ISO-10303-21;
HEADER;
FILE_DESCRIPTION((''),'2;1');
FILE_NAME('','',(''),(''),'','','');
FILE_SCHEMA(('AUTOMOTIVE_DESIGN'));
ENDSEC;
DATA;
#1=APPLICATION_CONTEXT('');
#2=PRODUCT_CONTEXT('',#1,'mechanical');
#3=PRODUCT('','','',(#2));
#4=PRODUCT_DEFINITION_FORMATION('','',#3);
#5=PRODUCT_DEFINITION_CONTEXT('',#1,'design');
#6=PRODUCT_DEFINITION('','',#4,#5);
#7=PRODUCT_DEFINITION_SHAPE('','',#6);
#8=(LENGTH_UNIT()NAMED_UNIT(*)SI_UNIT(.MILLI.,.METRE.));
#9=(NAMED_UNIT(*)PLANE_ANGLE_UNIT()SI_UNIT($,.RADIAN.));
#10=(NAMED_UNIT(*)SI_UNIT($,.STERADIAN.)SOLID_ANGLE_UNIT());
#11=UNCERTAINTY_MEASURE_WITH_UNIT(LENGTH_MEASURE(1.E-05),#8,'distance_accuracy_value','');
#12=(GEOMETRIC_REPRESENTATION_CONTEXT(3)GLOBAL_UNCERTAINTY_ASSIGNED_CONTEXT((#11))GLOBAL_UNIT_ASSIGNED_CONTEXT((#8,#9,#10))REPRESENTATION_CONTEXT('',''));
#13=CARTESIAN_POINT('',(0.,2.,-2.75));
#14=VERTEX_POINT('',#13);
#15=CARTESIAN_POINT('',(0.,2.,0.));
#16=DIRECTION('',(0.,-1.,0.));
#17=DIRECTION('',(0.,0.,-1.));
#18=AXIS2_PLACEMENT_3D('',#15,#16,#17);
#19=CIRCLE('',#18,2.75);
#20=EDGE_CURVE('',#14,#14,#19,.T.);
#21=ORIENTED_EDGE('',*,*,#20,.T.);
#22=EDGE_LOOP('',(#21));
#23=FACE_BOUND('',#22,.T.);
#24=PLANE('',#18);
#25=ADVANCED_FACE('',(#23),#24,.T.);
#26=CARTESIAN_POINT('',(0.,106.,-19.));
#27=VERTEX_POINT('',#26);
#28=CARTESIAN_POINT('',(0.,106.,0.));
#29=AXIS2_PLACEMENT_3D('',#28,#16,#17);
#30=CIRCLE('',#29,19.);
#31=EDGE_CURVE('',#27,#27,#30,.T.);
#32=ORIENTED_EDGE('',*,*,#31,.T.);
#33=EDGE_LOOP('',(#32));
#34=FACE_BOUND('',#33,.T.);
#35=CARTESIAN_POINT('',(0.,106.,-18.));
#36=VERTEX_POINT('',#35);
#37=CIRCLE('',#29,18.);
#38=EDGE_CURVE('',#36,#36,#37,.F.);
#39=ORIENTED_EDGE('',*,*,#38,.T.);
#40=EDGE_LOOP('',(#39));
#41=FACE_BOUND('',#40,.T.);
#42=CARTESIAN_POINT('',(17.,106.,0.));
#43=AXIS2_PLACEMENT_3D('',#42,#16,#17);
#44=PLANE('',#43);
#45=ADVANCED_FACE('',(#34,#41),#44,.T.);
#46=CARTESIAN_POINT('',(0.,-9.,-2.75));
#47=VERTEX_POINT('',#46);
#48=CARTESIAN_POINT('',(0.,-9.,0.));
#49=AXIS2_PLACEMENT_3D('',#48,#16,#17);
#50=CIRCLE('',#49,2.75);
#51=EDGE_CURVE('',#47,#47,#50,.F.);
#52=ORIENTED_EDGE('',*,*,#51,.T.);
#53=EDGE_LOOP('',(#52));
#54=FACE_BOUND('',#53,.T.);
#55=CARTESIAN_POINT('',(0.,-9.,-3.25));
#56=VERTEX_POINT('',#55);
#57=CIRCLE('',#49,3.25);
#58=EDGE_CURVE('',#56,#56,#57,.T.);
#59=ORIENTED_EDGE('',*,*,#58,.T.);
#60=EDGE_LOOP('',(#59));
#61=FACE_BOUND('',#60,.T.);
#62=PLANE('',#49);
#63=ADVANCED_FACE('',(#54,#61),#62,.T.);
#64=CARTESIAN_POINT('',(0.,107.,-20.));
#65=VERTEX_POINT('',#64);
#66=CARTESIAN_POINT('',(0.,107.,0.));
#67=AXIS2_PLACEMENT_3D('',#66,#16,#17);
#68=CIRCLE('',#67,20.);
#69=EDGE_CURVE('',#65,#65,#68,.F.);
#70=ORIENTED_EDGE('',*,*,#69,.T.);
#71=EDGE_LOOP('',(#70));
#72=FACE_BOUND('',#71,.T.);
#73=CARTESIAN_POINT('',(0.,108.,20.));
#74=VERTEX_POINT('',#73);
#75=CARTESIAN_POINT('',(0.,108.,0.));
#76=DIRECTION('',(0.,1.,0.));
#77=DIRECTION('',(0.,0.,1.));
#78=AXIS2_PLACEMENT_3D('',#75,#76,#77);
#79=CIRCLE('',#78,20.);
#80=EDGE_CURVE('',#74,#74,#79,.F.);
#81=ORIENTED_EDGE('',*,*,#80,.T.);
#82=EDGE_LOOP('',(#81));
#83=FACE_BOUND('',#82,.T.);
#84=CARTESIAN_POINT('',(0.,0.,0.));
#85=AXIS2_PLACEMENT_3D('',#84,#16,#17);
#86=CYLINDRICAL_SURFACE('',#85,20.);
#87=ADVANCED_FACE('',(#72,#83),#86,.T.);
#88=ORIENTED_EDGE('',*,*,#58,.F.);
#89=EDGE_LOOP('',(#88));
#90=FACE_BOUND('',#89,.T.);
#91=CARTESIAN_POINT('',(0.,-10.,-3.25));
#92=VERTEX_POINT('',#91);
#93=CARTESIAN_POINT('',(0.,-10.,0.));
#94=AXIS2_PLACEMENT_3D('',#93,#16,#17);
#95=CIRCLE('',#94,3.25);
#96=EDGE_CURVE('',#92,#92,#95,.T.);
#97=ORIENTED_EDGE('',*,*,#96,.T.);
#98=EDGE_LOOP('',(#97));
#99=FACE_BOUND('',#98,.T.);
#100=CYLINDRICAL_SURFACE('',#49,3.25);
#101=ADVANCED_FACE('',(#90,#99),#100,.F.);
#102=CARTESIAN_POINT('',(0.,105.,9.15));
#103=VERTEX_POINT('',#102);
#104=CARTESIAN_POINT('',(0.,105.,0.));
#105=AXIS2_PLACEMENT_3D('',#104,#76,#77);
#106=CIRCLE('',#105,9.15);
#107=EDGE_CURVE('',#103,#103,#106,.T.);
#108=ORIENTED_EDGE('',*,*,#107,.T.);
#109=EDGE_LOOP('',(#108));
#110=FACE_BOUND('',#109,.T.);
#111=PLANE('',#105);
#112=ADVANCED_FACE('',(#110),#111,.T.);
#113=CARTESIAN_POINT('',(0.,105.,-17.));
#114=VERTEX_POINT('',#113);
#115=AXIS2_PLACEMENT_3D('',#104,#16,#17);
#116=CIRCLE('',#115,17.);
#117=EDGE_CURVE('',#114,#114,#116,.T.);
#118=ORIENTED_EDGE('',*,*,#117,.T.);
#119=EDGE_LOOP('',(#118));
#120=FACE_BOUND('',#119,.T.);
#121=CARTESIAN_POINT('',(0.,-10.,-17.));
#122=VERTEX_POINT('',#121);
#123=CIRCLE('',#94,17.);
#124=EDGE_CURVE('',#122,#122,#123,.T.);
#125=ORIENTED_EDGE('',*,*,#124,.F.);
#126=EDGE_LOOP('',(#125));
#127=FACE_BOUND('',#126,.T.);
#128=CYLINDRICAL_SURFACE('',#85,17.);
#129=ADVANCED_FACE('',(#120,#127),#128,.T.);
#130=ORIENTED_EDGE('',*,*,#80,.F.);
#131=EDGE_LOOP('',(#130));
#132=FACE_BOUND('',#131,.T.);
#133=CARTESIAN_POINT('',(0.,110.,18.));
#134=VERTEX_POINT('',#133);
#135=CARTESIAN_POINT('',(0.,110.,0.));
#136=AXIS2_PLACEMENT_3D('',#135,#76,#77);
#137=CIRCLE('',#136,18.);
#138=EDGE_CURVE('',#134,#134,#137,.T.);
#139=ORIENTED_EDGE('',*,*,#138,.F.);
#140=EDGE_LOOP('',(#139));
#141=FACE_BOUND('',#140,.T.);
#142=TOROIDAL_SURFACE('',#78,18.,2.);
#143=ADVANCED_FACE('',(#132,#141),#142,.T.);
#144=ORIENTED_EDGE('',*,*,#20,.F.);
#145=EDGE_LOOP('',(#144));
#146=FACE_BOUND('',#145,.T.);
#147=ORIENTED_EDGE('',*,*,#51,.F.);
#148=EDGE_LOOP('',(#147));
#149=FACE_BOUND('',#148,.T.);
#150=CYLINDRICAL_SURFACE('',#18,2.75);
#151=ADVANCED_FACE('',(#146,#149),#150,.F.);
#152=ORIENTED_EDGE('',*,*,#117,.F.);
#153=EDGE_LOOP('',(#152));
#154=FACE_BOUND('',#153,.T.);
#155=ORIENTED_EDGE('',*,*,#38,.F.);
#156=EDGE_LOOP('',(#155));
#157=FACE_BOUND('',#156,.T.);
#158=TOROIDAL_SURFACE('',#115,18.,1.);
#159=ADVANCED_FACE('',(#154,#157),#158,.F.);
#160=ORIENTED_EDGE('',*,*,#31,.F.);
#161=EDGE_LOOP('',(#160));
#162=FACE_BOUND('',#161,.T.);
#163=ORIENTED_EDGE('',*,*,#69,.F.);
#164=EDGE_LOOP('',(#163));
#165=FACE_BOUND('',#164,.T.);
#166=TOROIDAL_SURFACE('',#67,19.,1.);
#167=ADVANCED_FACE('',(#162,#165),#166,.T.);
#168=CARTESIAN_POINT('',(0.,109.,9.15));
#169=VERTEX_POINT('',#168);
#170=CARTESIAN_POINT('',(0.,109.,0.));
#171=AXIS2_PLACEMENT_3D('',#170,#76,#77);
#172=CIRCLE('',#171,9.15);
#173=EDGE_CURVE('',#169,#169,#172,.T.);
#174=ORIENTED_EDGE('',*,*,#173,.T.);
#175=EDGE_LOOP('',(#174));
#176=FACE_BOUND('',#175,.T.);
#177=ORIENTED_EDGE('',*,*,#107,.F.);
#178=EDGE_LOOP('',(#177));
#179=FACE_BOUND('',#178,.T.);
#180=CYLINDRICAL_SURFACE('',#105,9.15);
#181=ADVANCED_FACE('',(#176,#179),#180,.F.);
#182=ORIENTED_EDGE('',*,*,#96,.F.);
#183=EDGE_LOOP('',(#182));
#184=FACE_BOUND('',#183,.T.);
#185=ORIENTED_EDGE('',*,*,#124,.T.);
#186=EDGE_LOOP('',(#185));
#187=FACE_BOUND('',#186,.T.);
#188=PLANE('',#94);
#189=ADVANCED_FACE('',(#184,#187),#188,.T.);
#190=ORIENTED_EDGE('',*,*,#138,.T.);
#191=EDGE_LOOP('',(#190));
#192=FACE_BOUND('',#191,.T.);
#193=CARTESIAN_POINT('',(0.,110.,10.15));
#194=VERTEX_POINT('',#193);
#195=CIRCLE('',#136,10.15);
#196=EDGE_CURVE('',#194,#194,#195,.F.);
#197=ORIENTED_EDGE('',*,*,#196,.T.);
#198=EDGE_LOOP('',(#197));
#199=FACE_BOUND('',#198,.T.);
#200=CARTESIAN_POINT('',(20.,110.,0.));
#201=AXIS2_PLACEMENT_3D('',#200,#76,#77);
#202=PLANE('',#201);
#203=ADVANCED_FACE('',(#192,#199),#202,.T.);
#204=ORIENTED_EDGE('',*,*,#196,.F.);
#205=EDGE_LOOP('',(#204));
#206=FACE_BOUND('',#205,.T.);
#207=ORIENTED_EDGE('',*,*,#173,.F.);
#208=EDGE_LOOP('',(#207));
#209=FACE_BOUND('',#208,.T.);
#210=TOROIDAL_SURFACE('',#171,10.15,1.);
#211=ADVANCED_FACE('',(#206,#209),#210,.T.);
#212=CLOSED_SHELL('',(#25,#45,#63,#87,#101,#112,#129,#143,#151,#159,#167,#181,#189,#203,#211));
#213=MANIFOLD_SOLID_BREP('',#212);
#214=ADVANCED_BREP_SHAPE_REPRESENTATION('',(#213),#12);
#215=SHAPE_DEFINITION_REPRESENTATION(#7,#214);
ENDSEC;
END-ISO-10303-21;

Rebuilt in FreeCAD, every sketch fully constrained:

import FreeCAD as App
import Part
import Sketcher
from FreeCAD import Vector
Q = App.Units.Quantity


def edges_at(feature, points):
    """Names of the edges that pass closest to the given points."""
    edges = feature.Shape.Edges
    near = lambda p: min(range(len(edges)), key=lambda i: edges[i].distToShape(Part.Vertex(*p))[0])
    return sorted({f"Edge{near(p) + 1}" for p in points})


def add_polygon(sketch, points):
    """Adds a closed chain of lines whose ends are joined by coincident constraints."""
    first, n = sketch.GeometryCount, len(points)
    for a, b in zip(points, points[1:] + points[:1]):
        sketch.addGeometry(Part.LineSegment(App.Vector(*a, 0), App.Vector(*b, 0)), False)
    for i in range(n):
        sketch.addConstraint(Sketcher.Constraint("Coincident", first + i, 2, first + (i + 1) % n, 1))

doc = App.newDocument("Part")
body = doc.addObject("PartDesign::Body", "Body")

sketch1 = doc.addObject("Sketcher::SketchObject", "Sketch")
body.addObject(sketch1)
sketch1.AttachmentSupport = (doc.XY_Plane, [""])
sketch1.MapMode = "FlatFace"
add_polygon(sketch1, [(17, 0), (17, 106), (20, 106), (20, 110), (0, 110), (0, 0)])
sketch1.addConstraint(Sketcher.Constraint("Vertical", 0))
sketch1.addConstraint(Sketcher.Constraint("Horizontal", 1))
sketch1.addConstraint(Sketcher.Constraint("Vertical", 2))
sketch1.addConstraint(Sketcher.Constraint("Horizontal", 3))
sketch1.addConstraint(Sketcher.Constraint("Vertical", 4))
sketch1.addConstraint(Sketcher.Constraint("Horizontal", 5))
sketch1.addConstraint(Sketcher.Constraint("Coincident", 4, 2, -1, 1))
sketch1.addConstraint(Sketcher.Constraint("DistanceX", 1, 1, 1, 2, Q("3 mm")))
sketch1.addConstraint(Sketcher.Constraint("DistanceX", 3, 2, 3, 1, Q("20 mm")))
sketch1.addConstraint(Sketcher.Constraint("DistanceY", 0, 1, 0, 2, Q("106 mm")))
sketch1.addConstraint(Sketcher.Constraint("DistanceY", 2, 1, 2, 2, Q("4 mm")))
revolution = doc.addObject("PartDesign::Revolution", "Revolution")
body.addObject(revolution)
revolution.Profile = sketch1
revolution.ReferenceAxis = (sketch1, ["V_Axis"])
revolution.Angle = 360

sketch2 = doc.addObject("Sketcher::SketchObject", "Sketch001")
body.addObject(sketch2)
sketch2.AttachmentSupport = (doc.XZ_Plane, [""])
sketch2.MapMode = "FlatFace"
sketch2.addGeometry(Part.Circle(Vector(0, 0, 0), Vector(0, 0, 1), 17), False)
sketch2.addConstraint(Sketcher.Constraint("Coincident", 0, 3, -1, 1))
sketch2.addConstraint(Sketcher.Constraint("Diameter", 0, Q("34 mm")))
pad1 = doc.addObject("PartDesign::Pad", "Pad")
body.addObject(pad1)
pad1.Profile = sketch2
pad1.Length = 10

sketch3 = doc.addObject("Sketcher::SketchObject", "Sketch002")
body.addObject(sketch3)
sketch3.AttachmentSupport = (doc.XZ_Plane, [""])
sketch3.MapMode = "FlatFace"
sketch3.AttachmentOffset = App.Placement(Vector(0, 0, -110), App.Rotation())
sketch3.addGeometry(Part.Circle(Vector(0, 0, 0), Vector(0, 0, 1), 9), False)
sketch3.addConstraint(Sketcher.Constraint("Coincident", 0, 3, -1, 1))
sketch3.addConstraint(Sketcher.Constraint("Diameter", 0, Q("18.3 mm")))
pocket1 = doc.addObject("PartDesign::Pocket", "Pocket")
body.addObject(pocket1)
pocket1.Profile = sketch3
pocket1.Length = 5
pocket1.Reversed = True
doc.recompute()

fillet = doc.addObject("PartDesign::Fillet", "Fillet")
body.addObject(fillet)
fillet.Base = (pocket1, edges_at(pocket1, [(0, 110, -9.15)]))
fillet.Radius = 1
doc.recompute()

fillet2 = doc.addObject("PartDesign::Fillet", "Fillet001")
body.addObject(fillet2)
fillet2.Base = (fillet, edges_at(fillet, [(0, 110, 20)]))
fillet2.Radius = 2
doc.recompute()

fillet3 = doc.addObject("PartDesign::Fillet", "Fillet002")
body.addObject(fillet3)
fillet3.Base = (fillet2, edges_at(fillet2, [(0, 106, 20)]))
fillet3.Radius = 1
doc.recompute()

fillet4 = doc.addObject("PartDesign::Fillet", "Fillet003")
body.addObject(fillet4)
fillet4.Base = (fillet3, edges_at(fillet3, [(0, 106, 17)]))
fillet4.Radius = 1

sketch4 = doc.addObject("Sketcher::SketchObject", "Sketch003")
body.addObject(sketch4)
sketch4.AttachmentSupport = (doc.XZ_Plane, [""])
sketch4.MapMode = "FlatFace"
sketch4.AttachmentOffset = App.Placement(Vector(0, 0, 10), App.Rotation())
sketch4.addGeometry(Part.Circle(Vector(0, 0, 0), Vector(0, 0, 1), 2.8), False)
sketch4.addConstraint(Sketcher.Constraint("Coincident", 0, 3, -1, 1))
sketch4.addConstraint(Sketcher.Constraint("Diameter", 0, Q("5.5 mm")))
pocket2 = doc.addObject("PartDesign::Pocket", "Pocket001")
body.addObject(pocket2)
pocket2.Profile = sketch4
pocket2.Length = 12

sketch5 = doc.addObject("Sketcher::SketchObject", "Sketch004")
body.addObject(sketch5)
sketch5.AttachmentSupport = (doc.XZ_Plane, [""])
sketch5.MapMode = "FlatFace"
sketch5.AttachmentOffset = App.Placement(Vector(0, 0, 10), App.Rotation())
sketch5.addGeometry(Part.Circle(Vector(0, 0, 0), Vector(0, 0, 1), 3.2), False)
sketch5.addConstraint(Sketcher.Constraint("Coincident", 0, 3, -1, 1))
sketch5.addConstraint(Sketcher.Constraint("Diameter", 0, Q("6.5 mm")))
pocket3 = doc.addObject("PartDesign::Pocket", "Pocket002")
body.addObject(pocket3)
pocket3.Profile = sketch5
pocket3.Length = 1

doc.recompute()
